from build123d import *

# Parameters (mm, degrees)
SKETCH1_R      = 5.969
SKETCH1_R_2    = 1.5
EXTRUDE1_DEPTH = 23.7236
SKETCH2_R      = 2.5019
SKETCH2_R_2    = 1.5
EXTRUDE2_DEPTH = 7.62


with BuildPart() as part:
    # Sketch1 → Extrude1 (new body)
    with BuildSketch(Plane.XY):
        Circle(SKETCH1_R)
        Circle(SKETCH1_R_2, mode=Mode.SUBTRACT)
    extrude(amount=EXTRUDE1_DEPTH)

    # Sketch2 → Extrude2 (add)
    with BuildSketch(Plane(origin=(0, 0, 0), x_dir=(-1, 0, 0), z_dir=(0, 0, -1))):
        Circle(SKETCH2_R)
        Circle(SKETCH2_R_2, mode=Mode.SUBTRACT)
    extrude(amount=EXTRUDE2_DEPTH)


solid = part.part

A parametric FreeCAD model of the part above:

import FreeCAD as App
import Part
import Sketcher
from FreeCAD import Vector
Q = App.Units.Quantity

doc = App.newDocument("Part")
body = doc.addObject("PartDesign::Body", "Body")

# Sketch on XY plane
sketch1 = body.newObject("Sketcher::SketchObject", "Sketch")
sketch1.AttachmentSupport = (doc.getObject("XY_Plane"), [""])
sketch1.MapMode = "FlatFace"
sketch1.addGeometry(Part.Circle(Vector(0, 0, 0), Vector(0, 0, 1), 6), False)
sketch1.addGeometry(Part.Circle(Vector(0, 0, 0), Vector(0, 0, 1), 1.5), False)
sketch1.addConstraint(Sketcher.Constraint("Coincident", 0, 3, -1, 1))
sketch1.addConstraint(Sketcher.Constraint("Coincident", 1, 3, -1, 1))
sketch1.addConstraint(Sketcher.Constraint("Diameter", 0, Q("0.47 in")))
sketch1.addConstraint(Sketcher.Constraint("Diameter", 1, Q("3 mm")))
pad1 = body.newObject("PartDesign::Pad", "Pad")
pad1.Profile = sketch1
pad1.Length = Q("0.934 in")

# Sketch on XY plane
sketch2 = body.newObject("Sketcher::SketchObject", "Sketch001")
sketch2.AttachmentSupport = (doc.getObject("XY_Plane"), [""])
sketch2.MapMode = "FlatFace"
sketch2.addGeometry(Part.Circle(Vector(0, 0, 0), Vector(0, 0, 1), 2.5), False)
sketch2.addGeometry(Part.Circle(Vector(0, 0, 0), Vector(0, 0, 1), 1.5), False)
sketch2.addConstraint(Sketcher.Constraint("Coincident", 0, 3, -1, 1))
sketch2.addConstraint(Sketcher.Constraint("Coincident", 1, 3, -1, 1))
sketch2.addConstraint(Sketcher.Constraint("Diameter", 0, Q("0.197 in")))
sketch2.addConstraint(Sketcher.Constraint("Diameter", 1, Q("3 mm")))
pad2 = body.newObject("PartDesign::Pad", "Pad001")
pad2.Profile = sketch2
pad2.Length = Q("0.3 in")
pad2.Reversed = True

doc.recompute()
